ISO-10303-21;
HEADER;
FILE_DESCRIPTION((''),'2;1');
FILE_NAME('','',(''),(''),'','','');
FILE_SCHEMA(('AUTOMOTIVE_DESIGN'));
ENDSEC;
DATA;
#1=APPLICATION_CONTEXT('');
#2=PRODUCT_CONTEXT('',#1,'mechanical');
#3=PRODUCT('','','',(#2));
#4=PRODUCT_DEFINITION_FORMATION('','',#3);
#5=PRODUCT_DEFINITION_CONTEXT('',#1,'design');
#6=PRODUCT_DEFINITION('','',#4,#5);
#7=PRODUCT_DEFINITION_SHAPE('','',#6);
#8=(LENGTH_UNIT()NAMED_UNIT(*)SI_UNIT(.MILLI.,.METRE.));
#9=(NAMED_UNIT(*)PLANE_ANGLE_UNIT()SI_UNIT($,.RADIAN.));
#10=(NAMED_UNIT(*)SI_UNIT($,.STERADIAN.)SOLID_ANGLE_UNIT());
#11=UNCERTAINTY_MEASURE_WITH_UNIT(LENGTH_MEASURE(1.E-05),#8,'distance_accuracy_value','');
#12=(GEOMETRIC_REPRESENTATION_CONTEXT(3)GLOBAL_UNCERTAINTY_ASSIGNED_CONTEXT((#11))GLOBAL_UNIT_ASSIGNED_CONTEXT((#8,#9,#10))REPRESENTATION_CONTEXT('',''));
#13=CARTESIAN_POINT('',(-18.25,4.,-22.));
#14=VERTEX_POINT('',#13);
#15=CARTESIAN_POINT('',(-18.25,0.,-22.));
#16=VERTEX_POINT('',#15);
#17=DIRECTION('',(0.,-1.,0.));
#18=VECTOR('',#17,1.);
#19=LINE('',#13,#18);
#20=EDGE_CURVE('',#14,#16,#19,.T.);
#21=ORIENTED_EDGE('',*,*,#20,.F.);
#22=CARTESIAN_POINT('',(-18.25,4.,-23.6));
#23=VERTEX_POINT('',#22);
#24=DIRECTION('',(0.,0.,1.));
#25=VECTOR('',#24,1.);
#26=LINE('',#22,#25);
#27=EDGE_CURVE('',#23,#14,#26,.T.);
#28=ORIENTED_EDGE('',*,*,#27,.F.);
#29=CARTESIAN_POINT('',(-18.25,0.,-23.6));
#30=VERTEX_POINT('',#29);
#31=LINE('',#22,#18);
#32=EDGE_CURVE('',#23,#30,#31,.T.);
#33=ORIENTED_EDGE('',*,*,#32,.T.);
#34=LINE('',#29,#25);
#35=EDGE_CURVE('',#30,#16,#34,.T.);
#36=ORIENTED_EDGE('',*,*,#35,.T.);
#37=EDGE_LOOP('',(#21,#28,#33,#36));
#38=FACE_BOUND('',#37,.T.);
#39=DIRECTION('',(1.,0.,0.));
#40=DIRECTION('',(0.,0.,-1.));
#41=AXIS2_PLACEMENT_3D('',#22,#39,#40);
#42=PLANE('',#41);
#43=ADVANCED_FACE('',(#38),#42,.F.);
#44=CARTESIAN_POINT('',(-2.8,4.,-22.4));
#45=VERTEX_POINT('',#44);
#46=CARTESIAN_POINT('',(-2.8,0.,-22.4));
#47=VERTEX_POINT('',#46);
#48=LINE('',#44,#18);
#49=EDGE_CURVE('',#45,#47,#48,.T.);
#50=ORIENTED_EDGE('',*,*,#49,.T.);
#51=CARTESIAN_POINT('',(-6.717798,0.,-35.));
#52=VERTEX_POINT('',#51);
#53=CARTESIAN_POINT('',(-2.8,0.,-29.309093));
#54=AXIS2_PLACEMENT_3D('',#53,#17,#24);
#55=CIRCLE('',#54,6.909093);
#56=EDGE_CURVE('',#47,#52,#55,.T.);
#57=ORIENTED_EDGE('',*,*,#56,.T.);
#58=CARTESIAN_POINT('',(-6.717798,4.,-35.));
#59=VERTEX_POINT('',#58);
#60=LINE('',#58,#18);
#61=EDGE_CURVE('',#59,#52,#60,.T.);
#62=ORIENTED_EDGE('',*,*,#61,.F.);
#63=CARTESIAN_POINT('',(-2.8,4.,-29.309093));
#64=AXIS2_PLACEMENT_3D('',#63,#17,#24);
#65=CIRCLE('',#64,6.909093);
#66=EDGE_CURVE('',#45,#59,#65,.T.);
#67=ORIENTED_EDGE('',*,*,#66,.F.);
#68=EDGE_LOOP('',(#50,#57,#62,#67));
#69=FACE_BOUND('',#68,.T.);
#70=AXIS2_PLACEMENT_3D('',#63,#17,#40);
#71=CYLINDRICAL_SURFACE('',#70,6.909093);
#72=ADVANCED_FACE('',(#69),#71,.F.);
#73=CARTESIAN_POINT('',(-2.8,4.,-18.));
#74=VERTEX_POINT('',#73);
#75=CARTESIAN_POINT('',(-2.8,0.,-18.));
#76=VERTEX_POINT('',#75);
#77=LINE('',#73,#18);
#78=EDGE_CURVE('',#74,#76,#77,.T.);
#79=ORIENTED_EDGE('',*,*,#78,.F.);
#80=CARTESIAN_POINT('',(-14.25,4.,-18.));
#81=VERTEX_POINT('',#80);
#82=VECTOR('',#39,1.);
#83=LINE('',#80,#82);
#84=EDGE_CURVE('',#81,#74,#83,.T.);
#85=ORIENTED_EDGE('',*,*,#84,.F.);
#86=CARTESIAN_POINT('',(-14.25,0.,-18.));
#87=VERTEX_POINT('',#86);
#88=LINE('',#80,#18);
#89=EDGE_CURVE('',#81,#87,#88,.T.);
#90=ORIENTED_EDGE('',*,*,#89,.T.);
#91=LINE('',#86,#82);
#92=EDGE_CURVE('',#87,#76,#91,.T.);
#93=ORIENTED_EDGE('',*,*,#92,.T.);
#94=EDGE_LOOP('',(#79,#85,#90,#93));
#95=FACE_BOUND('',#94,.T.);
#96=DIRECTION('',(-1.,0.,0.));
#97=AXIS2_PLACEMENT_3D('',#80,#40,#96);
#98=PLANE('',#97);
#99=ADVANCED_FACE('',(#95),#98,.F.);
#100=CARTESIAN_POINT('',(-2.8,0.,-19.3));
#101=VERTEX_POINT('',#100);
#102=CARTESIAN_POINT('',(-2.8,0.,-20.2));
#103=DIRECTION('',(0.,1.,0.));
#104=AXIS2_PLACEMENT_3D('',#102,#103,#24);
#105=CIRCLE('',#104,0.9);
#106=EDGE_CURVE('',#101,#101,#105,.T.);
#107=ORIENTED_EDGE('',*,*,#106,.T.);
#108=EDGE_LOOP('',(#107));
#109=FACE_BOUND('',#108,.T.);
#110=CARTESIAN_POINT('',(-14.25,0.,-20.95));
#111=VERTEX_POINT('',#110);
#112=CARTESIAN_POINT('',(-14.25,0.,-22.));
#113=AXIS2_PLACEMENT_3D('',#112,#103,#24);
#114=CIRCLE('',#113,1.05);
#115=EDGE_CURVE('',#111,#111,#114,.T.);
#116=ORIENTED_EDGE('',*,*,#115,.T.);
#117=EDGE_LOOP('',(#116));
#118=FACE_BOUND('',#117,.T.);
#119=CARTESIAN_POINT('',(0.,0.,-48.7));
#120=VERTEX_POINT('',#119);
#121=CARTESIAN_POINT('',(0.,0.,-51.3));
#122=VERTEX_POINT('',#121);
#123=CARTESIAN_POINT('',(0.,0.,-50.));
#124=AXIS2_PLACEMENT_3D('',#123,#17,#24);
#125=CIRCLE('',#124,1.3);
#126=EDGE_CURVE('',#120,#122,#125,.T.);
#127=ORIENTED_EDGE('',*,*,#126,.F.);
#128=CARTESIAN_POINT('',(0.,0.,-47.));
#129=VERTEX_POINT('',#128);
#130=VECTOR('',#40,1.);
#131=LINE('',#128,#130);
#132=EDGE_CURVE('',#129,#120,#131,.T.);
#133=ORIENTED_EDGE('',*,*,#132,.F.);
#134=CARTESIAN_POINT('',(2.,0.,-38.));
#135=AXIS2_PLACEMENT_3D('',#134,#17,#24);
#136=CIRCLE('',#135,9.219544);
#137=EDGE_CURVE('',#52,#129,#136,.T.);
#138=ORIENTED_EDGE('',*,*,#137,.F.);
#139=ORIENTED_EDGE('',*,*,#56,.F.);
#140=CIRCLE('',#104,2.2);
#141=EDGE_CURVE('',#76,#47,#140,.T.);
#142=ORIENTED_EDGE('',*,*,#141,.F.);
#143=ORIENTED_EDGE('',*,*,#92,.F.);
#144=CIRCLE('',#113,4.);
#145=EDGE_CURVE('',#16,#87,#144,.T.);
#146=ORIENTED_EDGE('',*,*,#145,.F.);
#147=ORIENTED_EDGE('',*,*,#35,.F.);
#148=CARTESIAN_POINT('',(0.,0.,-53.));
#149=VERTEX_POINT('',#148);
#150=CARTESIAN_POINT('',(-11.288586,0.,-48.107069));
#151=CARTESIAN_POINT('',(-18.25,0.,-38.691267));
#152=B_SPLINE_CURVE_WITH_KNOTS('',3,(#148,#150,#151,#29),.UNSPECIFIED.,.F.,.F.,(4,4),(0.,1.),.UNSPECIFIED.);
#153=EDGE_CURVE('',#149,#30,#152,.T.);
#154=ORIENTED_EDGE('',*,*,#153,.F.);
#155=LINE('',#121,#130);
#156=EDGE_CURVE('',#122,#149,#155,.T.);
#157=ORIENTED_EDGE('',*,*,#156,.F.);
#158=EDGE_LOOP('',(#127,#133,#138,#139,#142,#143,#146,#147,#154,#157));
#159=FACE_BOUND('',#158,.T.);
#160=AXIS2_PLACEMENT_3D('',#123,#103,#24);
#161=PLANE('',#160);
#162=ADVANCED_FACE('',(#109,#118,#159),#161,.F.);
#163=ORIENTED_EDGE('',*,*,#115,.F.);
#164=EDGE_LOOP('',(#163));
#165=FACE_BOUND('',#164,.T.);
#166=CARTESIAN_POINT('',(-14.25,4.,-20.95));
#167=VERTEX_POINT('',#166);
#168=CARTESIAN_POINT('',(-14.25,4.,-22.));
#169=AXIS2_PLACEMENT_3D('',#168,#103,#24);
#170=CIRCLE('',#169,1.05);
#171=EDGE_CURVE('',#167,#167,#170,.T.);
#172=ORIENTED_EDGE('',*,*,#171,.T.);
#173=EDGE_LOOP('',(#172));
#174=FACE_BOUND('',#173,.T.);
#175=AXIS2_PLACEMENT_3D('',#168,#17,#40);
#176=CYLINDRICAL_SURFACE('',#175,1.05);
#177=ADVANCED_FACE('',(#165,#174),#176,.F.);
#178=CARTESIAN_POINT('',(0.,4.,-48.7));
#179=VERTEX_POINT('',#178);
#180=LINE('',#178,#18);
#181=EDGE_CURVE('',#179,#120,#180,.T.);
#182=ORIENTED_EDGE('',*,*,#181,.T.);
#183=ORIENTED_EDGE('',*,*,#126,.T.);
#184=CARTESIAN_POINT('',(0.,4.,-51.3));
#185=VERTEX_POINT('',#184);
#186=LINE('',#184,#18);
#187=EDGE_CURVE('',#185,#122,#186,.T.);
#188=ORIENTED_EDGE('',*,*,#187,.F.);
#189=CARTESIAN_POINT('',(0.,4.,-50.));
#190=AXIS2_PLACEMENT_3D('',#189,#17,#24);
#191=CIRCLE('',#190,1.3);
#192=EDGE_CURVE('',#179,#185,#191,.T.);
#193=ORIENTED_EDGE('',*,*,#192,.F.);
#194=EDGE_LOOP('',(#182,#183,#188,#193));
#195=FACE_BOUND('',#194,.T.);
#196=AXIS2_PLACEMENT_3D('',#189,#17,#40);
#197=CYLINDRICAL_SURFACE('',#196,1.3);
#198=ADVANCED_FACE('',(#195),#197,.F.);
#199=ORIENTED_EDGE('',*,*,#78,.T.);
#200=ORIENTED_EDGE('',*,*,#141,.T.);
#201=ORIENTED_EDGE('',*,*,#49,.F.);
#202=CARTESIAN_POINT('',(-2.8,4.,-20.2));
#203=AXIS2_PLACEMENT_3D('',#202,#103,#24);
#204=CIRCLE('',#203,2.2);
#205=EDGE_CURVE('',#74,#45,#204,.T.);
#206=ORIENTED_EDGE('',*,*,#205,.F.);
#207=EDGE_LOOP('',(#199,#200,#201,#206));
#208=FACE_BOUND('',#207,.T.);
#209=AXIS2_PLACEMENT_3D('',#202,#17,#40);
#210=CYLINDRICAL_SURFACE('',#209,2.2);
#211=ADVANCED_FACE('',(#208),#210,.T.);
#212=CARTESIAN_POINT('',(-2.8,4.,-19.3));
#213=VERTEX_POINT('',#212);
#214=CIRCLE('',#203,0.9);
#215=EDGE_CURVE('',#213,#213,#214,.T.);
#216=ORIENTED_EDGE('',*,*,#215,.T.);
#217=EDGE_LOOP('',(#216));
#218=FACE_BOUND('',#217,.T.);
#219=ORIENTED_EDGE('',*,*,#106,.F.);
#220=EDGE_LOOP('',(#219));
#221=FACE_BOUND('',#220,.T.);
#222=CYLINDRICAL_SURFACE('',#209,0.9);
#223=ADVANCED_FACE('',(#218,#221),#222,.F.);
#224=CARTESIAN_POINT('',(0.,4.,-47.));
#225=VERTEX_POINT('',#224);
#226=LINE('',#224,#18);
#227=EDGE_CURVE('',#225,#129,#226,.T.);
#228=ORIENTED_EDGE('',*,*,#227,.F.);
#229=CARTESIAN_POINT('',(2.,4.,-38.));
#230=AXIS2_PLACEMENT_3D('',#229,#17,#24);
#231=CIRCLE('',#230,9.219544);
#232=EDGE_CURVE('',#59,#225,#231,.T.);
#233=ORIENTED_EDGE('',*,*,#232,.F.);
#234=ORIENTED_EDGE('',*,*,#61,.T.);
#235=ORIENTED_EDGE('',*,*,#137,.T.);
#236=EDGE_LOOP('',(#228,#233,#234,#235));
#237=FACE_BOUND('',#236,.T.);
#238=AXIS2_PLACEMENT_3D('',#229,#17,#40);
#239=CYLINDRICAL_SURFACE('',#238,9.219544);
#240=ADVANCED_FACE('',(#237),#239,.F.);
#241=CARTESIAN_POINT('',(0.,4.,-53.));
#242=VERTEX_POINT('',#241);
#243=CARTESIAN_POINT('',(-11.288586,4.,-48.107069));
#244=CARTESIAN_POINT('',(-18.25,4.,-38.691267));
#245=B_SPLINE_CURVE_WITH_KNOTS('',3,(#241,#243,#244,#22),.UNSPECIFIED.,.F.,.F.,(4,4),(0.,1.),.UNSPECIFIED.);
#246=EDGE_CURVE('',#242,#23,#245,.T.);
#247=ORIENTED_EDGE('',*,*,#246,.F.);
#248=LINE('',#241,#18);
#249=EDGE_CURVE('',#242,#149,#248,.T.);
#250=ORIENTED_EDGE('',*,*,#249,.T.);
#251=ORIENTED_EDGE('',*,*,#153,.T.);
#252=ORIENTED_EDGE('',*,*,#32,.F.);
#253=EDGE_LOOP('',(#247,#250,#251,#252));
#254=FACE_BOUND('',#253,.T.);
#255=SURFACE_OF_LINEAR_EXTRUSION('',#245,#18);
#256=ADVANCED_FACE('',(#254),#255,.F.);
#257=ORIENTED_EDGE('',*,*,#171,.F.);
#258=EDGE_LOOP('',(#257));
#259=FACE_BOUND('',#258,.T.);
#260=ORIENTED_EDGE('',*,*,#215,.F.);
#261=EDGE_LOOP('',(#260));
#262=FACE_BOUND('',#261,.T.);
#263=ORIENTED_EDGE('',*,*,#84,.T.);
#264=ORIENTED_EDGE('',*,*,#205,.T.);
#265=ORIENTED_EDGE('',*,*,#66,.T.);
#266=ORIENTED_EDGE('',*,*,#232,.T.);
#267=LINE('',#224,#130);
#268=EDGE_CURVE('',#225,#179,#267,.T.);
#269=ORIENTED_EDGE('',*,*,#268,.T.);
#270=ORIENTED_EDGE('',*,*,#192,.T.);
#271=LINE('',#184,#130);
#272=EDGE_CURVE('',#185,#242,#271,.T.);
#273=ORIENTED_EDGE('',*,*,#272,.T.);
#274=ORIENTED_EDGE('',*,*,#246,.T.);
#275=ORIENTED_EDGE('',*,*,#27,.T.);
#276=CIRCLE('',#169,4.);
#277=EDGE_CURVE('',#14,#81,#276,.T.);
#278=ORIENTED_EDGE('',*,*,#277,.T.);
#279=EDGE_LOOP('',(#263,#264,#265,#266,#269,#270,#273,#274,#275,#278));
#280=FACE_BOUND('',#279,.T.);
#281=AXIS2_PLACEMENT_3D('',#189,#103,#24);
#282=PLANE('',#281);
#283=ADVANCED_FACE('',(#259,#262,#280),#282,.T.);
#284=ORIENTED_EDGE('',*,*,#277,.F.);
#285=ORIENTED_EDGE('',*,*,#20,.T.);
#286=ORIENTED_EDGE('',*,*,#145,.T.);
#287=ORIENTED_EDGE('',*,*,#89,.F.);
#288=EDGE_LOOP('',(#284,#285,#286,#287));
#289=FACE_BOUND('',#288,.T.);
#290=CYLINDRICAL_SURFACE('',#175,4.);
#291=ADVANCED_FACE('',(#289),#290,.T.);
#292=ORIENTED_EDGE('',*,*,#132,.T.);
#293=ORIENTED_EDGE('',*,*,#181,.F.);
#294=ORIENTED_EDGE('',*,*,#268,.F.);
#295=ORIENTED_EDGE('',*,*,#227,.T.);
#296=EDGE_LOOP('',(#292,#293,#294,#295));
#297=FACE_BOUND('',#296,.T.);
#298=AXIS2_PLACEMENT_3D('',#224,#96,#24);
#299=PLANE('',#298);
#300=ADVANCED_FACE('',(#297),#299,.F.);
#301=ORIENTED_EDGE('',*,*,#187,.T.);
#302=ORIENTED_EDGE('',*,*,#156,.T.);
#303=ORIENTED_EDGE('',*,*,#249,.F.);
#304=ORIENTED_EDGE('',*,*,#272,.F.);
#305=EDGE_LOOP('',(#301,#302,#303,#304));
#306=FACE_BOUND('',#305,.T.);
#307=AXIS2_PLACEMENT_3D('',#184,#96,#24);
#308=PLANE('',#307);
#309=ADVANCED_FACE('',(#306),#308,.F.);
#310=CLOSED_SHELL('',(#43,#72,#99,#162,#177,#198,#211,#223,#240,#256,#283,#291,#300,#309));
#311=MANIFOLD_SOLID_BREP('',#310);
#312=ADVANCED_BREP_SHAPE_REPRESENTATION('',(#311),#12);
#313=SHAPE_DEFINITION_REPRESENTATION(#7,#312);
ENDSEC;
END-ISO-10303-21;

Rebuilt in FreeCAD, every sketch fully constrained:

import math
import FreeCAD as App
import Part
import Sketcher

V = App.Vector

doc = App.newDocument("Part")
body = doc.addObject("PartDesign::Body", "Body")

# Sketch on XZ plane
sketch1 = body.newObject("Sketcher::SketchObject", "Sketch")
sketch1.AttachmentSupport = (doc.getObject("XZ_Plane"), [""])
sketch1.MapMode = "FlatFace"
sketch1.addGeometry(Part.LineSegment(V(0, -51.3, 0), V(0, -53, 0)), False)
sketch1.addGeometry(Part.BSplineCurve([V(0, -53, 0), V(-11.288586, -48.107069, 0), V(-18.25, -38.691267, 0), V(-18.25, -23.6, 0)], [4, 4], [0, 1], False, 3, [1, 1, 1, 1], False), False)
sketch1.addGeometry(Part.LineSegment(V(-18.25, -23.6, 0), V(-18.25, -22, 0)), False)
sketch1.addGeometry(Part.ArcOfCircle(Part.Circle(V(-14.25, -22, 0), V(0, 0, 1), 4), math.radians(90), math.radians(180)), False)
sketch1.addGeometry(Part.LineSegment(V(-14.25, -18, 0), V(-2.8, -18, 0)), False)
sketch1.addGeometry(Part.ArcOfCircle(Part.Circle(V(-2.8, -20.2, 0), V(0, 0, 1), 2.2), math.radians(-90), math.radians(90)), False)
sketch1.addGeometry(Part.ArcOfCircle(Part.Circle(V(-2.8, -29.309093, 0), V(0, 0, 1), 6.909093), math.radians(90), math.radians(235.455264)), False)
sketch1.addGeometry(Part.ArcOfCircle(Part.Circle(V(2, -38, 0), V(0, 0, 1), 9.219544), math.radians(161.010451), math.radians(257.471192)), False)
sketch1.addGeometry(Part.LineSegment(V(0, -47, 0), V(0, -48.7, 0)), False)
sketch1.addGeometry(Part.ArcOfCircle(Part.Circle(V(0, -50, 0), V(0, 0, 1), 1.3), math.radians(90), math.radians(270)), False)
sketch1.addGeometry(Part.Circle(V(-2.8, -20.2, 0), V(0, 0, 1), 0.9), False)
sketch1.addGeometry(Part.Circle(V(-14.25, -22, 0), V(0, 0, 1), 1.05), False)
sketch1.addConstraint(Sketcher.Constraint("Block", 1))
sketch1.addConstraint(Sketcher.Constraint("Coincident", 0, 2, 1, 1))
sketch1.addConstraint(Sketcher.Constraint("Coincident", 1, 2, 2, 1))
sketch1.addConstraint(Sketcher.Constraint("Coincident", 2, 2, 3, 2))
sketch1.addConstraint(Sketcher.Constraint("Coincident", 3, 1, 4, 1))
sketch1.addConstraint(Sketcher.Constraint("Coincident", 4, 2, 5, 2))
sketch1.addConstraint(Sketcher.Constraint("Coincident", 5, 1, 6, 1))
sketch1.addConstraint(Sketcher.Constraint("Coincident", 6, 2, 7, 1))
sketch1.addConstraint(Sketcher.Constraint("Coincident", 7, 2, 8, 1))
sketch1.addConstraint(Sketcher.Constraint("Coincident", 8, 2, 9, 1))
sketch1.addConstraint(Sketcher.Constraint("Coincident", 9, 2, 0, 1))
sketch1.addConstraint(Sketcher.Constraint("Vertical", 0))
sketch1.addConstraint(Sketcher.Constraint("Vertical", 2))
sketch1.addConstraint(Sketcher.Constraint("Horizontal", 4))
sketch1.addConstraint(Sketcher.Constraint("Vertical", 8))
sketch1.addConstraint(Sketcher.Constraint("Coincident", 10, 3, 5, 3))
sketch1.addConstraint(Sketcher.Constraint("Coincident", 11, 3, 3, 3))
sketch1.addConstraint(Sketcher.Constraint("PointOnObject", 9, 3, -2))
sketch1.addConstraint(Sketcher.Constraint("PointOnObject", 7, 2, -2))
sketch1.addConstraint(Sketcher.Constraint("Radius", 3, 4.0))
sketch1.addConstraint(Sketcher.Constraint("Diameter", 10, 1.8))
sketch1.addConstraint(Sketcher.Constraint("Diameter", 11, 2.1))
sketch1.addConstraint(Sketcher.Constraint("Radius", 5, 2.2))
sketch1.addConstraint(Sketcher.Constraint("Radius", 9, 1.3))
sketch1.addConstraint(Sketcher.Constraint("DistanceY", 0, 2, 0, 1, 1.7))
sketch1.addConstraint(Sketcher.Constraint("DistanceY", 2, 1, 2, 2, 1.6))
sketch1.addConstraint(Sketcher.Constraint("DistanceY", 8, 2, 8, 1, 1.7))
sketch1.addConstraint(Sketcher.Constraint("DistanceY", 3, 3, -1, 1, 22.0))
sketch1.addConstraint(Sketcher.Constraint("DistanceX", -1, 1, 7, 3, 2.0))
sketch1.addConstraint(Sketcher.Constraint("DistanceY", 7, 3, -1, 1, 38.0))
sketch1.addConstraint(Sketcher.Constraint("DistanceY", 6, 2, -1, 1, 35.0))
sketch1.addConstraint(Sketcher.Constraint("DistanceX", 2, 2, 3, 1, 4.0))
sketch1.addConstraint(Sketcher.Constraint("DistanceX", 4, 1, 4, 2, 11.45))
sketch1.addConstraint(Sketcher.Constraint("DistanceX", 5, 3, -1, 1, 2.8))
sketch1.addConstraint(Sketcher.Constraint("DistanceX", 6, 3, -1, 1, 2.8))
sketch1.addConstraint(Sketcher.Constraint("DistanceX", 5, 1, -1, 1, 2.8))
pad1 = body.newObject("PartDesign::Pad", "Pad")
pad1.Profile = sketch1
pad1.Length = 4
pad1.Reversed = True

doc.recompute()
